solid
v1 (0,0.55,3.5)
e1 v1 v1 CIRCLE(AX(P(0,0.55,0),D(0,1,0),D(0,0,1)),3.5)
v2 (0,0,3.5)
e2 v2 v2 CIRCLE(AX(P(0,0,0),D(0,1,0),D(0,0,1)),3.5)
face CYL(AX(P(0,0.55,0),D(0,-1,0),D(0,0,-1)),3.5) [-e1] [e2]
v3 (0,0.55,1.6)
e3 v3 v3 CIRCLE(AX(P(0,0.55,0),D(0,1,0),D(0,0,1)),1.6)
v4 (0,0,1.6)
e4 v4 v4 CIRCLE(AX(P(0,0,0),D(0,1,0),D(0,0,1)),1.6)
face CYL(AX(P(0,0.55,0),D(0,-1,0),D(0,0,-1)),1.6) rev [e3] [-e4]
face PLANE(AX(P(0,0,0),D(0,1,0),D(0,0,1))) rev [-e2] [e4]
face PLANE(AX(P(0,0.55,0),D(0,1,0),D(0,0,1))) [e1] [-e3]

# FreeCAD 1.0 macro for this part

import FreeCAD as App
import Part
import Sketcher

V = App.Vector

doc = App.newDocument("Part")
body = doc.addObject("PartDesign::Body", "Body")

sketch1 = body.newObject("Sketcher::SketchObject", "Sketch")
sketch1.AttachmentSupport = (doc.getObject("XZ_Plane"), [""])
sketch1.MapMode = "FlatFace"
sketch1.addGeometry([
    Part.Circle(V(0, 0, 0), V(0, 0, 1), 3.5),
    Part.Circle(V(0, 0, 0), V(0, 0, 1), 1.6),
], False)
sketch1.addConstraint([
    Sketcher.Constraint("Coincident", 0, 3, -1, 1),
    Sketcher.Constraint("Coincident", 1, 3, -1, 1),
    Sketcher.Constraint("Diameter", 0, 7.0),
    Sketcher.Constraint("Diameter", 1, 3.2),
])
pad1 = body.newObject("PartDesign::Pad", "Pad")
pad1.Profile = sketch1
pad1.Length = 0.55
pad1.Reversed = True

doc.recompute()
